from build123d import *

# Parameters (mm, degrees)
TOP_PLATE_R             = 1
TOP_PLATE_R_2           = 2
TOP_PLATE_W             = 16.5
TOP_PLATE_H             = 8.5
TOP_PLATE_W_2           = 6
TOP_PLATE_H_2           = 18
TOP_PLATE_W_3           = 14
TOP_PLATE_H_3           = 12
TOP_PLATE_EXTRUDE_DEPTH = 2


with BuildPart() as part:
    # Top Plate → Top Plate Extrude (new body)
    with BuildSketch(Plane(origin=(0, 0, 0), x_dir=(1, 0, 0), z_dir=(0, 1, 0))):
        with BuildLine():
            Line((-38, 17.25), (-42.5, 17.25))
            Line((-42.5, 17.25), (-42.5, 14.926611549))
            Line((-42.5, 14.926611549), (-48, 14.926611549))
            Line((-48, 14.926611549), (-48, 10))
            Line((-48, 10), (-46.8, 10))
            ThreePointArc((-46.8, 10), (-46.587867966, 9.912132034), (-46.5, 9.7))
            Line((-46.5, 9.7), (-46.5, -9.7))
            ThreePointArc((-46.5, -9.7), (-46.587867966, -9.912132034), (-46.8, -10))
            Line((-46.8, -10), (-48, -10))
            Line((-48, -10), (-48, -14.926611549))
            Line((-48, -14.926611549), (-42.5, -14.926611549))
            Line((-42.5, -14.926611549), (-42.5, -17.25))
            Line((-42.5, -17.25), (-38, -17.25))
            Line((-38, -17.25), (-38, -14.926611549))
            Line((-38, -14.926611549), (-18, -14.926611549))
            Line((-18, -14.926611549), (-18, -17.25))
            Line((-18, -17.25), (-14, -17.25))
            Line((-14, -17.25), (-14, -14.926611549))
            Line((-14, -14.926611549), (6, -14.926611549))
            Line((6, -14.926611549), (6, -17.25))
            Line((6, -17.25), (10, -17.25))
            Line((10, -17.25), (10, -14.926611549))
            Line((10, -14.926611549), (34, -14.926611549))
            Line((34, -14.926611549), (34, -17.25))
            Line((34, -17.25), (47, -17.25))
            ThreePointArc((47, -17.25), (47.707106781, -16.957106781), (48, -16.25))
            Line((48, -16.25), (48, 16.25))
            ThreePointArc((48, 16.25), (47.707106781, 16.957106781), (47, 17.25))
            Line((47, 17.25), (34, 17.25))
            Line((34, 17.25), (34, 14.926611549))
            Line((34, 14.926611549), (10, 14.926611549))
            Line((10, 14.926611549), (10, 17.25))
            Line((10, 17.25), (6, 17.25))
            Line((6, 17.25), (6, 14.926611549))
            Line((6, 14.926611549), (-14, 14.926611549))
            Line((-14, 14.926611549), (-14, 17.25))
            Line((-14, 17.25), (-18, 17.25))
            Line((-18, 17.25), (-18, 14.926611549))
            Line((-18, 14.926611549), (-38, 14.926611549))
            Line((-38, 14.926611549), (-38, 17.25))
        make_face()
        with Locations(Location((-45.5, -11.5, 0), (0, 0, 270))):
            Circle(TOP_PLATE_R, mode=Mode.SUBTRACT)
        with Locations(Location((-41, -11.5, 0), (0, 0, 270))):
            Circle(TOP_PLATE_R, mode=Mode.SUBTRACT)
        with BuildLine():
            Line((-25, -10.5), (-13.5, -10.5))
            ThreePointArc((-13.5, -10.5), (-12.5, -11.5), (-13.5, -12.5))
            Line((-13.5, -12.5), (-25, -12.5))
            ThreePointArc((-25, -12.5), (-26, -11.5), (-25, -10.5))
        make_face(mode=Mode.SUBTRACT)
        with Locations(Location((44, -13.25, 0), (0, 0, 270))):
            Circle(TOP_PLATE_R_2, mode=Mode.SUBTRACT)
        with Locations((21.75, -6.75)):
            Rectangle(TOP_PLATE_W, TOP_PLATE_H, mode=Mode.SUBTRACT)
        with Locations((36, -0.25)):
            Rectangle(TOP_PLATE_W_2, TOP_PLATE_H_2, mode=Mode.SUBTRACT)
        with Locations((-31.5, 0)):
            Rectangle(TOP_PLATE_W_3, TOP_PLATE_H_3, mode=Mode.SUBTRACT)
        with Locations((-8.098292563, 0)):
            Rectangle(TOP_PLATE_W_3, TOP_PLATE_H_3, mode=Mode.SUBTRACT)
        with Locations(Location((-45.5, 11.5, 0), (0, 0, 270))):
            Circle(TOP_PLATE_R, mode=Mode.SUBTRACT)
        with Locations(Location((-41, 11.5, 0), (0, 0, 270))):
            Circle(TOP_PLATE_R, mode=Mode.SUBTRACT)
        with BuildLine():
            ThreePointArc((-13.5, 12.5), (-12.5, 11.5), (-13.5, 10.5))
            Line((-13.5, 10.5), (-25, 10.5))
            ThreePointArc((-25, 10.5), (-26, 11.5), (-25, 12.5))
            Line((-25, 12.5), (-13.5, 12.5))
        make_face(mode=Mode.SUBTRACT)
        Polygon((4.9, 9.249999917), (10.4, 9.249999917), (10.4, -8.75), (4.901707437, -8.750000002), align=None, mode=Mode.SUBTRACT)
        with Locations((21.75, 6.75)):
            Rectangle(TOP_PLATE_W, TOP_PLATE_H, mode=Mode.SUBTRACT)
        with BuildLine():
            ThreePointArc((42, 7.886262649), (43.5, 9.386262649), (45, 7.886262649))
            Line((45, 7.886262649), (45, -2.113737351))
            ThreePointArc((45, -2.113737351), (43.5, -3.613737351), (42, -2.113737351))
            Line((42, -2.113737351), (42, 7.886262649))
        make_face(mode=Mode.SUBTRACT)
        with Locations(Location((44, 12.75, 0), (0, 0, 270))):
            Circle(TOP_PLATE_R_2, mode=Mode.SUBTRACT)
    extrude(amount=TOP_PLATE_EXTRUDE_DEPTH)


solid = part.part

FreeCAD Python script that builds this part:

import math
import FreeCAD as App
import Part
import Sketcher

V = App.Vector

doc = App.newDocument("Part")
body = doc.addObject("PartDesign::Body", "Body")

sketch1 = body.newObject("Sketcher::SketchObject", "Sketch")
sketch1.AttachmentSupport = (doc.getObject("XZ_Plane"), [""])
sketch1.MapMode = "FlatFace"
sketch1.addGeometry([
    Part.LineSegment(V(-38, -17.25, 0), V(-42.5, -17.25, 0)),
    Part.LineSegment(V(-42.5, -17.25, 0), V(-42.5, -14.93, 0)),
    Part.LineSegment(V(-42.5, -14.93, 0), V(-48, -14.93, 0)),
    Part.LineSegment(V(-48, -14.93, 0), V(-48, -10, 0)),
    Part.LineSegment(V(-48, -10, 0), V(-46.8, -10, 0)),
    Part.ArcOfCircle(Part.Circle(V(-46.8, -9.7, 0), V(0, 0, 1), 0.3), math.radians(-90), math.radians(0)),
    Part.LineSegment(V(-46.5, -9.7, 0), V(-46.5, 9.7, 0)),
    Part.ArcOfCircle(Part.Circle(V(-46.8, 9.7, 0), V(0, 0, 1), 0.3), math.radians(0), math.radians(90)),
    Part.LineSegment(V(-46.8, 10, 0), V(-48, 10, 0)),
    Part.LineSegment(V(-48, 10, 0), V(-48, 14.93, 0)),
    Part.LineSegment(V(-48, 14.93, 0), V(-42.5, 14.93, 0)),
    Part.LineSegment(V(-42.5, 14.93, 0), V(-42.5, 17.25, 0)),
    Part.LineSegment(V(-42.5, 17.25, 0), V(-38, 17.25, 0)),
    Part.LineSegment(V(-38, 17.25, 0), V(-38, 14.93, 0)),
    Part.LineSegment(V(-38, 14.93, 0), V(-18, 14.93, 0)),
    Part.LineSegment(V(-18, 14.93, 0), V(-18, 17.25, 0)),
    Part.LineSegment(V(-18, 17.25, 0), V(-14, 17.25, 0)),
    Part.LineSegment(V(-14, 17.25, 0), V(-14, 14.93, 0)),
    Part.LineSegment(V(-14, 14.93, 0), V(6, 14.93, 0)),
    Part.LineSegment(V(6, 14.93, 0), V(6, 17.25, 0)),
    Part.LineSegment(V(6, 17.25, 0), V(10, 17.25, 0)),
    Part.LineSegment(V(10, 17.25, 0), V(10, 14.93, 0)),
    Part.LineSegment(V(10, 14.93, 0), V(34, 14.93, 0)),
    Part.LineSegment(V(34, 14.93, 0), V(34, 17.25, 0)),
    Part.LineSegment(V(34, 17.25, 0), V(47, 17.25, 0)),
    Part.ArcOfCircle(Part.Circle(V(47, 16.25, 0), V(0, 0, 1), 1), math.radians(0), math.radians(90)),
    Part.LineSegment(V(48, 16.25, 0), V(48, -16.25, 0)),
    Part.ArcOfCircle(Part.Circle(V(47, -16.25, 0), V(0, 0, 1), 1), math.radians(-90), math.radians(0)),
    Part.LineSegment(V(47, -17.25, 0), V(34, -17.25, 0)),
    Part.LineSegment(V(34, -17.25, 0), V(34, -14.93, 0)),
    Part.LineSegment(V(34, -14.93, 0), V(10, -14.93, 0)),
    Part.LineSegment(V(10, -14.93, 0), V(10, -17.25, 0)),
    Part.LineSegment(V(10, -17.25, 0), V(6, -17.25, 0)),
    Part.LineSegment(V(6, -17.25, 0), V(6, -14.93, 0)),
    Part.LineSegment(V(6, -14.93, 0), V(-14, -14.93, 0)),
    Part.LineSegment(V(-14, -14.93, 0), V(-14, -17.25, 0)),
    Part.LineSegment(V(-14, -17.25, 0), V(-18, -17.25, 0)),
    Part.LineSegment(V(-18, -17.25, 0), V(-18, -14.93, 0)),
    Part.LineSegment(V(-18, -14.93, 0), V(-38, -14.93, 0)),
    Part.LineSegment(V(-38, -14.93, 0), V(-38, -17.25, 0)),
    Part.Circle(V(-45.5, 11.5, 0), V(0, 0, 1), 1),
    Part.Circle(V(-41, 11.5, 0), V(0, 0, 1), 1),
    Part.ArcOfCircle(Part.Circle(V(-25, 11.5, 0), V(0, 0, 1), 1), math.radians(90), math.radians(270)),
    Part.LineSegment(V(-25, 10.5, 0), V(-13.5, 10.5, 0)),
    Part.ArcOfCircle(Part.Circle(V(-13.5, 11.5, 0), V(0, 0, 1), 1), math.radians(-90), math.radians(90)),
    Part.LineSegment(V(-13.5, 12.5, 0), V(-25, 12.5, 0)),
    Part.Circle(V(44, 13.25, 0), V(0, 0, 1), 2),
    Part.LineSegment(V(30, 11, 0), V(13.5, 11, 0)),
    Part.LineSegment(V(13.5, 11, 0), V(13.5, 2.5, 0)),
    Part.LineSegment(V(13.5, 2.5, 0), V(30, 2.5, 0)),
    Part.LineSegment(V(30, 2.5, 0), V(30, 11, 0)),
    Part.LineSegment(V(-24.5, 6, 0), V(-38.5, 6, 0)),
    Part.LineSegment(V(-38.5, 6, 0), V(-38.5, -6, 0)),
    Part.LineSegment(V(-38.5, -6, 0), V(-24.5, -6, 0)),
    Part.LineSegment(V(-24.5, -6, 0), V(-24.5, 6, 0)),
    Part.LineSegment(V(-1.1, 6, 0), V(-15.1, 6, 0)),
    Part.LineSegment(V(-15.1, 6, 0), V(-15.1, -6, 0)),
    Part.LineSegment(V(-15.1, -6, 0), V(-1.1, -6, 0)),
    Part.LineSegment(V(-1.1, -6, 0), V(-1.1, 6, 0)),
    Part.Circle(V(-45.5, -11.5, 0), V(0, 0, 1), 1),
    Part.Circle(V(-41, -11.5, 0), V(0, 0, 1), 1),
    Part.LineSegment(V(-25, -12.5, 0), V(-13.5, -12.5, 0)),
    Part.ArcOfCircle(Part.Circle(V(-13.5, -11.5, 0), V(0, 0, 1), 1), math.radians(-90), math.radians(90)),
    Part.LineSegment(V(-13.5, -10.5, 0), V(-25, -10.5, 0)),
    Part.ArcOfCircle(Part.Circle(V(-25, -11.5, 0), V(0, 0, 1), 1), math.radians(90), math.radians(270)),
    Part.LineSegment(V(4.9, 8.75, 0), V(4.9, -9.25, 0)),
    Part.LineSegment(V(4.9, -9.25, 0), V(10.4, -9.25, 0)),
    Part.LineSegment(V(10.4, -9.25, 0), V(10.4, 8.75, 0)),
    Part.LineSegment(V(10.4, 8.75, 0), V(4.9, 8.75, 0)),
    Part.LineSegment(V(30, -2.5, 0), V(13.5, -2.5, 0)),
    Part.LineSegment(V(13.5, -2.5, 0), V(13.5, -11, 0)),
    Part.LineSegment(V(13.5, -11, 0), V(30, -11, 0)),
    Part.LineSegment(V(30, -11, 0), V(30, -2.5, 0)),
    Part.LineSegment(V(39, 9.25, 0), V(33, 9.25, 0)),
    Part.LineSegment(V(33, 9.25, 0), V(33, -8.75, 0)),
    Part.LineSegment(V(33, -8.75, 0), V(39, -8.75, 0)),
    Part.LineSegment(V(39, -8.75, 0), V(39, 9.25, 0)),
    Part.LineSegment(V(42, 2.11, 0), V(42, -7.89, 0)),
    Part.ArcOfCircle(Part.Circle(V(43.5, -7.89, 0), V(0, 0, 1), 1.5), math.radians(180), math.radians(360)),
    Part.LineSegment(V(45, -7.89, 0), V(45, 2.11, 0)),
    Part.ArcOfCircle(Part.Circle(V(43.5, 2.11, 0), V(0, 0, 1), 1.5), math.radians(0), math.radians(180)),
    Part.Circle(V(44, -12.75, 0), V(0, 0, 1), 2),
], False)
sketch1.addConstraint([
    Sketcher.Constraint("Coincident", 0, 2, 1, 1),
    Sketcher.Constraint("Coincident", 1, 2, 2, 1),
    Sketcher.Constraint("Coincident", 2, 2, 3, 1),
    Sketcher.Constraint("Coincident", 3, 2, 4, 1),
    Sketcher.Constraint("Tangent", 4, 2, 5, 1),
    Sketcher.Constraint("Tangent", 5, 2, 6, 1),
    Sketcher.Constraint("Tangent", 6, 2, 7, 1),
    Sketcher.Constraint("Tangent", 7, 2, 8, 1),
    Sketcher.Constraint("Coincident", 8, 2, 9, 1),
    Sketcher.Constraint("Coincident", 9, 2, 10, 1),
    Sketcher.Constraint("Coincident", 10, 2, 11, 1),
    Sketcher.Constraint("Coincident", 11, 2, 12, 1),
    Sketcher.Constraint("Coincident", 12, 2, 13, 1),
    Sketcher.Constraint("Coincident", 13, 2, 14, 1),
    Sketcher.Constraint("Coincident", 14, 2, 15, 1),
    Sketcher.Constraint("Coincident", 15, 2, 16, 1),
    Sketcher.Constraint("Coincident", 16, 2, 17, 1),
    Sketcher.Constraint("Coincident", 17, 2, 18, 1),
    Sketcher.Constraint("Coincident", 18, 2, 19, 1),
    Sketcher.Constraint("Coincident", 19, 2, 20, 1),
    Sketcher.Constraint("Coincident", 20, 2, 21, 1),
    Sketcher.Constraint("Coincident", 21, 2, 22, 1),
    Sketcher.Constraint("Coincident", 22, 2, 23, 1),
    Sketcher.Constraint("Coincident", 23, 2, 24, 1),
    Sketcher.Constraint("Tangent", 24, 2, 25, 2),
    Sketcher.Constraint("Tangent", 25, 1, 26, 1),
    Sketcher.Constraint("Tangent", 26, 2, 27, 2),
    Sketcher.Constraint("Tangent", 27, 1, 28, 1),
    Sketcher.Constraint("Coincident", 28, 2, 29, 1),
    Sketcher.Constraint("Coincident", 29, 2, 30, 1),
    Sketcher.Constraint("Coincident", 30, 2, 31, 1),
    Sketcher.Constraint("Coincident", 31, 2, 32, 1),
    Sketcher.Constraint("Coincident", 32, 2, 33, 1),
    Sketcher.Constraint("Coincident", 33, 2, 34, 1),
    Sketcher.Constraint("Coincident", 34, 2, 35, 1),
    Sketcher.Constraint("Coincident", 35, 2, 36, 1),
    Sketcher.Constraint("Coincident", 36, 2, 37, 1),
    Sketcher.Constraint("Coincident", 37, 2, 38, 1),
    Sketcher.Constraint("Coincident", 38, 2, 39, 1),
    Sketcher.Constraint("Coincident", 39, 2, 0, 1),
    Sketcher.Constraint("Tangent", 42, 2, 43, 1),
    Sketcher.Constraint("Tangent", 43, 2, 44, 1),
    Sketcher.Constraint("Tangent", 44, 2, 45, 1),
    Sketcher.Constraint("Tangent", 45, 2, 42, 1),
    Sketcher.Constraint("Coincident", 47, 2, 48, 1),
    Sketcher.Constraint("Coincident", 48, 2, 49, 1),
    Sketcher.Constraint("Coincident", 49, 2, 50, 1),
    Sketcher.Constraint("Coincident", 50, 2, 47, 1),
    Sketcher.Constraint("Coincident", 51, 2, 52, 1),
    Sketcher.Constraint("Coincident", 52, 2, 53, 1),
    Sketcher.Constraint("Coincident", 53, 2, 54, 1),
    Sketcher.Constraint("Coincident", 54, 2, 51, 1),
    Sketcher.Constraint("Coincident", 55, 2, 56, 1),
    Sketcher.Constraint("Coincident", 56, 2, 57, 1),
    Sketcher.Constraint("Coincident", 57, 2, 58, 1),
    Sketcher.Constraint("Coincident", 58, 2, 55, 1),
    Sketcher.Constraint("Tangent", 61, 2, 62, 1),
    Sketcher.Constraint("Tangent", 62, 2, 63, 1),
    Sketcher.Constraint("Tangent", 63, 2, 64, 1),
    Sketcher.Constraint("Tangent", 64, 2, 61, 1),
    Sketcher.Constraint("Coincident", 65, 2, 66, 1),
    Sketcher.Constraint("Coincident", 66, 2, 67, 1),
    Sketcher.Constraint("Coincident", 67, 2, 68, 1),
    Sketcher.Constraint("Coincident", 68, 2, 65, 1),
    Sketcher.Constraint("Coincident", 69, 2, 70, 1),
    Sketcher.Constraint("Coincident", 70, 2, 71, 1),
    Sketcher.Constraint("Coincident", 71, 2, 72, 1),
    Sketcher.Constraint("Coincident", 72, 2, 69, 1),
    Sketcher.Constraint("Coincident", 73, 2, 74, 1),
    Sketcher.Constraint("Coincident", 74, 2, 75, 1),
    Sketcher.Constraint("Coincident", 75, 2, 76, 1),
    Sketcher.Constraint("Coincident", 76, 2, 73, 1),
    Sketcher.Constraint("Tangent", 77, 2, 78, 1),
    Sketcher.Constraint("Tangent", 78, 2, 79, 1),
    Sketcher.Constraint("Tangent", 79, 2, 80, 1),
    Sketcher.Constraint("Tangent", 80, 2, 77, 1),
    Sketcher.Constraint("Horizontal", 0),
    Sketcher.Constraint("Vertical", 1),
    Sketcher.Constraint("Horizontal", 2),
    Sketcher.Constraint("Vertical", 3),
    Sketcher.Constraint("Horizontal", 4),
    Sketcher.Constraint("Vertical", 6),
    Sketcher.Constraint("Horizontal", 8),
    Sketcher.Constraint("Vertical", 9),
    Sketcher.Constraint("Horizontal", 10),
    Sketcher.Constraint("Vertical", 11),
    Sketcher.Constraint("Horizontal", 12),
    Sketcher.Constraint("Vertical", 13),
    Sketcher.Constraint("Horizontal", 14),
    Sketcher.Constraint("Vertical", 15),
    Sketcher.Constraint("Horizontal", 16),
    Sketcher.Constraint("Vertical", 17),
    Sketcher.Constraint("Horizontal", 18),
    Sketcher.Constraint("Vertical", 19),
    Sketcher.Constraint("Horizontal", 20),
    Sketcher.Constraint("Vertical", 21),
    Sketcher.Constraint("Horizontal", 22),
    Sketcher.Constraint("Vertical", 23),
    Sketcher.Constraint("Horizontal", 24),
    Sketcher.Constraint("Vertical", 26),
    Sketcher.Constraint("Horizontal", 28),
    Sketcher.Constraint("Vertical", 29),
    Sketcher.Constraint("Horizontal", 30),
    Sketcher.Constraint("Vertical", 31),
    Sketcher.Constraint("Horizontal", 32),
    Sketcher.Constraint("Vertical", 33),
    Sketcher.Constraint("Horizontal", 34),
    Sketcher.Constraint("Vertical", 35),
    Sketcher.Constraint("Horizontal", 36),
    Sketcher.Constraint("Vertical", 37),
    Sketcher.Constraint("Horizontal", 38),
    Sketcher.Constraint("Vertical", 39),
    Sketcher.Constraint("Horizontal", 43),
    Sketcher.Constraint("Horizontal", 45),
    Sketcher.Constraint("Horizontal", 47),
    Sketcher.Constraint("Vertical", 48),
    Sketcher.Constraint("Horizontal", 49),
    Sketcher.Constraint("Vertical", 50),
    Sketcher.Constraint("Horizontal", 51),
    Sketcher.Constraint("Vertical", 52),
    Sketcher.Constraint("Horizontal", 53),
    Sketcher.Constraint("Vertical", 54),
    Sketcher.Constraint("Horizontal", 55),
    Sketcher.Constraint("Vertical", 56),
    Sketcher.Constraint("Horizontal", 57),
    Sketcher.Constraint("Vertical", 58),
    Sketcher.Constraint("Horizontal", 61),
    Sketcher.Constraint("Horizontal", 63),
    Sketcher.Constraint("Horizontal", 66),
    Sketcher.Constraint("Vertical", 67),
    Sketcher.Constraint("Horizontal", 68),
    Sketcher.Constraint("Horizontal", 69),
    Sketcher.Constraint("Vertical", 70),
    Sketcher.Constraint("Horizontal", 71),
    Sketcher.Constraint("Vertical", 72),
    Sketcher.Constraint("Horizontal", 73),
    Sketcher.Constraint("Vertical", 74),
    Sketcher.Constraint("Horizontal", 75),
    Sketcher.Constraint("Vertical", 76),
    Sketcher.Constraint("Vertical", 77),
    Sketcher.Constraint("Vertical", 79),
    Sketcher.Constraint("Equal", 5, 7),
    Sketcher.Constraint("Equal", 25, 27),
    Sketcher.Constraint("Equal", 27, 40),
    Sketcher.Constraint("Equal", 40, 41),
    Sketcher.Constraint("Equal", 41, 42),
    Sketcher.Constraint("Equal", 44, 59),
    Sketcher.Constraint("Equal", 59, 60),
    Sketcher.Constraint("Equal", 60, 62),
    Sketcher.Constraint("Equal", 46, 81),
    Sketcher.Constraint("Symmetric", 40, 3, 59, 3, -1),
    Sketcher.Constraint("Symmetric", 41, 3, 60, 3, -1),
    Sketcher.Constraint("Symmetric", 44, 3, 62, 3, -1),
    Sketcher.Constraint("Symmetric", 3, 2, 8, 2, -1),
    Sketcher.Constraint("Symmetric", 1, 2, 10, 2, -1),
    Sketcher.Constraint("Symmetric", 23, 2, 28, 2, -1),
    Sketcher.Constraint("Symmetric", 21, 2, 30, 2, -1),
    Sketcher.Constraint("Symmetric", 19, 2, 32, 2, -1),
    Sketcher.Constraint("Symmetric", 17, 2, 34, 2, -1),
    Sketcher.Constraint("Symmetric", 15, 2, 36, 2, -1),
    Sketcher.Constraint("Symmetric", 13, 2, 38, 2, -1),
    Sketcher.Constraint("Symmetric", 48, 2, 69, 2, -1),
    Sketcher.Constraint("Symmetric", 50, 2, 71, 2, -1),
    Sketcher.Constraint("Horizontal", 40, 3, 41, 3),
    Sketcher.Constraint("Horizontal", 41, 3, 42, 3),
    Sketcher.Constraint("Horizontal", 10, 2, 13, 2),
    Sketcher.Constraint("Horizontal", 12, 2, 15, 2),
    Sketcher.Constraint("Horizontal", 14, 2, 17, 2),
    Sketcher.Constraint("Horizontal", 16, 2, 19, 2),
    Sketcher.Constraint("Horizontal", 18, 2, 21, 2),
    Sketcher.Constraint("Horizontal", 20, 2, 23, 2),
    Sketcher.Constraint("Horizontal", 0, 2, 27, 1),
    Sketcher.Constraint("Horizontal", 54, 2, 55, 2),
    Sketcher.Constraint("Horizontal", 53, 2, 56, 2),
    Sketcher.Constraint("Vertical", 42, 3, 64, 3),
    Sketcher.Constraint("Vertical", 46, 3, 81, 3),
    Sketcher.Constraint("Equal", 14, 18),
    Sketcher.Constraint("Equal", 16, 20),
    Sketcher.Constraint("Equal", 53, 55),
    Sketcher.Constraint("Equal", 10, 66),
    Sketcher.Constraint("Equal", 67, 74),
    Sketcher.Constraint("Diameter", 40, 2.0),
    Sketcher.Constraint("Diameter", 46, 4.0),
    Sketcher.Constraint("Radius", 5, 0.3),
    Sketcher.Constraint("Radius", 78, 1.5),
    Sketcher.Constraint("DistanceX", 14, 1, 14, 2, 20.0),
    Sketcher.Constraint("DistanceX", 16, 1, 16, 2, 4.0),
    Sketcher.Constraint("DistanceX", 22, 1, 22, 2, 24.0),
    Sketcher.Constraint("DistanceX", 24, 1, 24, 2, 13.0),
    Sketcher.Constraint("DistanceX", 51, 2, 51, 1, 14.0),
    Sketcher.Constraint("DistanceX", 73, 2, 73, 1, 6.0),
    Sketcher.Constraint("DistanceY", 52, 2, 52, 1, 12.0),
    Sketcher.Constraint("DistanceY", 67, 1, 67, 2, 18.0),
    Sketcher.Constraint("DistanceY", 77, 2, 77, 1, 10.0),
    Sketcher.Constraint("DistanceX", 0, 2, 0, 1, 4.5),
    Sketcher.Constraint("DistanceX", 2, 2, 2, 1, 5.5),
    Sketcher.Constraint("DistanceX", 4, 1, 4, 2, 1.2),
    Sketcher.Constraint("DistanceX", 43, 1, 43, 2, 11.5),
    Sketcher.Constraint("DistanceX", 47, 2, 47, 1, 16.5),
    Sketcher.Constraint("DistanceY", 6, 1, 6, 2, 19.4),
    Sketcher.Constraint("DistanceY", 26, 2, 26, 1, 32.5),
    Sketcher.Constraint("DistanceY", 48, 2, 48, 1, 8.5),
    Sketcher.Constraint("DistanceX", -1, 1, 25, 3, 47.0),
    Sketcher.Constraint("DistanceX", 41, 3, -1, 1, 41.0),
    Sketcher.Constraint("DistanceX", 42, 3, -1, 1, 25.0),
    Sketcher.Constraint("DistanceX", -1, 1, 46, 3, 44.0),
    Sketcher.Constraint("DistanceY", -1, 1, 47, 2, 11.0),
    Sketcher.Constraint("DistanceX", -1, 1, 49, 2, 30.0),
    Sketcher.Constraint("DistanceY", -1, 1, 51, 2, 6.0),
    Sketcher.Constraint("DistanceX", -1, 1, 73, 2, 33.0),
    Sketcher.Constraint("DistanceX", -1, 1, 77, 2, 42.0),
    Sketcher.Constraint("DistanceX", 40, 3, -1, 1, 45.5),
    Sketcher.Constraint("DistanceY", -1, 1, 40, 3, 11.5),
    Sketcher.Constraint("DistanceX", 51, 2, -1, 1, 38.5),
    Sketcher.Constraint("DistanceX", -1, 1, 65, 2, 4.9),
    Sketcher.Constraint("DistanceY", -1, 1, 46, 3, 13.25),
    Sketcher.Constraint("DistanceY", 81, 3, -1, 1, 12.75),
    Sketcher.Constraint("DistanceY", 65, 2, -1, 1, 9.25),
    Sketcher.Constraint("DistanceY", -1, 1, 73, 2, 9.25),
    Sketcher.Constraint("DistanceY", 1, 1, 1, 2, 2.323388),
    Sketcher.Constraint("DistanceX", 68, 2, 68, 1, 5.498293),
    Sketcher.Constraint("DistanceY", 78, 3, -1, 1, 7.886263),
    Sketcher.Constraint("DistanceX", 55, 2, -1, 1, 15.098293),
])
pad1 = body.newObject("PartDesign::Pad", "Pad")
pad1.Profile = sketch1
pad1.Length = 2
pad1.Reversed = True

doc.recompute()
